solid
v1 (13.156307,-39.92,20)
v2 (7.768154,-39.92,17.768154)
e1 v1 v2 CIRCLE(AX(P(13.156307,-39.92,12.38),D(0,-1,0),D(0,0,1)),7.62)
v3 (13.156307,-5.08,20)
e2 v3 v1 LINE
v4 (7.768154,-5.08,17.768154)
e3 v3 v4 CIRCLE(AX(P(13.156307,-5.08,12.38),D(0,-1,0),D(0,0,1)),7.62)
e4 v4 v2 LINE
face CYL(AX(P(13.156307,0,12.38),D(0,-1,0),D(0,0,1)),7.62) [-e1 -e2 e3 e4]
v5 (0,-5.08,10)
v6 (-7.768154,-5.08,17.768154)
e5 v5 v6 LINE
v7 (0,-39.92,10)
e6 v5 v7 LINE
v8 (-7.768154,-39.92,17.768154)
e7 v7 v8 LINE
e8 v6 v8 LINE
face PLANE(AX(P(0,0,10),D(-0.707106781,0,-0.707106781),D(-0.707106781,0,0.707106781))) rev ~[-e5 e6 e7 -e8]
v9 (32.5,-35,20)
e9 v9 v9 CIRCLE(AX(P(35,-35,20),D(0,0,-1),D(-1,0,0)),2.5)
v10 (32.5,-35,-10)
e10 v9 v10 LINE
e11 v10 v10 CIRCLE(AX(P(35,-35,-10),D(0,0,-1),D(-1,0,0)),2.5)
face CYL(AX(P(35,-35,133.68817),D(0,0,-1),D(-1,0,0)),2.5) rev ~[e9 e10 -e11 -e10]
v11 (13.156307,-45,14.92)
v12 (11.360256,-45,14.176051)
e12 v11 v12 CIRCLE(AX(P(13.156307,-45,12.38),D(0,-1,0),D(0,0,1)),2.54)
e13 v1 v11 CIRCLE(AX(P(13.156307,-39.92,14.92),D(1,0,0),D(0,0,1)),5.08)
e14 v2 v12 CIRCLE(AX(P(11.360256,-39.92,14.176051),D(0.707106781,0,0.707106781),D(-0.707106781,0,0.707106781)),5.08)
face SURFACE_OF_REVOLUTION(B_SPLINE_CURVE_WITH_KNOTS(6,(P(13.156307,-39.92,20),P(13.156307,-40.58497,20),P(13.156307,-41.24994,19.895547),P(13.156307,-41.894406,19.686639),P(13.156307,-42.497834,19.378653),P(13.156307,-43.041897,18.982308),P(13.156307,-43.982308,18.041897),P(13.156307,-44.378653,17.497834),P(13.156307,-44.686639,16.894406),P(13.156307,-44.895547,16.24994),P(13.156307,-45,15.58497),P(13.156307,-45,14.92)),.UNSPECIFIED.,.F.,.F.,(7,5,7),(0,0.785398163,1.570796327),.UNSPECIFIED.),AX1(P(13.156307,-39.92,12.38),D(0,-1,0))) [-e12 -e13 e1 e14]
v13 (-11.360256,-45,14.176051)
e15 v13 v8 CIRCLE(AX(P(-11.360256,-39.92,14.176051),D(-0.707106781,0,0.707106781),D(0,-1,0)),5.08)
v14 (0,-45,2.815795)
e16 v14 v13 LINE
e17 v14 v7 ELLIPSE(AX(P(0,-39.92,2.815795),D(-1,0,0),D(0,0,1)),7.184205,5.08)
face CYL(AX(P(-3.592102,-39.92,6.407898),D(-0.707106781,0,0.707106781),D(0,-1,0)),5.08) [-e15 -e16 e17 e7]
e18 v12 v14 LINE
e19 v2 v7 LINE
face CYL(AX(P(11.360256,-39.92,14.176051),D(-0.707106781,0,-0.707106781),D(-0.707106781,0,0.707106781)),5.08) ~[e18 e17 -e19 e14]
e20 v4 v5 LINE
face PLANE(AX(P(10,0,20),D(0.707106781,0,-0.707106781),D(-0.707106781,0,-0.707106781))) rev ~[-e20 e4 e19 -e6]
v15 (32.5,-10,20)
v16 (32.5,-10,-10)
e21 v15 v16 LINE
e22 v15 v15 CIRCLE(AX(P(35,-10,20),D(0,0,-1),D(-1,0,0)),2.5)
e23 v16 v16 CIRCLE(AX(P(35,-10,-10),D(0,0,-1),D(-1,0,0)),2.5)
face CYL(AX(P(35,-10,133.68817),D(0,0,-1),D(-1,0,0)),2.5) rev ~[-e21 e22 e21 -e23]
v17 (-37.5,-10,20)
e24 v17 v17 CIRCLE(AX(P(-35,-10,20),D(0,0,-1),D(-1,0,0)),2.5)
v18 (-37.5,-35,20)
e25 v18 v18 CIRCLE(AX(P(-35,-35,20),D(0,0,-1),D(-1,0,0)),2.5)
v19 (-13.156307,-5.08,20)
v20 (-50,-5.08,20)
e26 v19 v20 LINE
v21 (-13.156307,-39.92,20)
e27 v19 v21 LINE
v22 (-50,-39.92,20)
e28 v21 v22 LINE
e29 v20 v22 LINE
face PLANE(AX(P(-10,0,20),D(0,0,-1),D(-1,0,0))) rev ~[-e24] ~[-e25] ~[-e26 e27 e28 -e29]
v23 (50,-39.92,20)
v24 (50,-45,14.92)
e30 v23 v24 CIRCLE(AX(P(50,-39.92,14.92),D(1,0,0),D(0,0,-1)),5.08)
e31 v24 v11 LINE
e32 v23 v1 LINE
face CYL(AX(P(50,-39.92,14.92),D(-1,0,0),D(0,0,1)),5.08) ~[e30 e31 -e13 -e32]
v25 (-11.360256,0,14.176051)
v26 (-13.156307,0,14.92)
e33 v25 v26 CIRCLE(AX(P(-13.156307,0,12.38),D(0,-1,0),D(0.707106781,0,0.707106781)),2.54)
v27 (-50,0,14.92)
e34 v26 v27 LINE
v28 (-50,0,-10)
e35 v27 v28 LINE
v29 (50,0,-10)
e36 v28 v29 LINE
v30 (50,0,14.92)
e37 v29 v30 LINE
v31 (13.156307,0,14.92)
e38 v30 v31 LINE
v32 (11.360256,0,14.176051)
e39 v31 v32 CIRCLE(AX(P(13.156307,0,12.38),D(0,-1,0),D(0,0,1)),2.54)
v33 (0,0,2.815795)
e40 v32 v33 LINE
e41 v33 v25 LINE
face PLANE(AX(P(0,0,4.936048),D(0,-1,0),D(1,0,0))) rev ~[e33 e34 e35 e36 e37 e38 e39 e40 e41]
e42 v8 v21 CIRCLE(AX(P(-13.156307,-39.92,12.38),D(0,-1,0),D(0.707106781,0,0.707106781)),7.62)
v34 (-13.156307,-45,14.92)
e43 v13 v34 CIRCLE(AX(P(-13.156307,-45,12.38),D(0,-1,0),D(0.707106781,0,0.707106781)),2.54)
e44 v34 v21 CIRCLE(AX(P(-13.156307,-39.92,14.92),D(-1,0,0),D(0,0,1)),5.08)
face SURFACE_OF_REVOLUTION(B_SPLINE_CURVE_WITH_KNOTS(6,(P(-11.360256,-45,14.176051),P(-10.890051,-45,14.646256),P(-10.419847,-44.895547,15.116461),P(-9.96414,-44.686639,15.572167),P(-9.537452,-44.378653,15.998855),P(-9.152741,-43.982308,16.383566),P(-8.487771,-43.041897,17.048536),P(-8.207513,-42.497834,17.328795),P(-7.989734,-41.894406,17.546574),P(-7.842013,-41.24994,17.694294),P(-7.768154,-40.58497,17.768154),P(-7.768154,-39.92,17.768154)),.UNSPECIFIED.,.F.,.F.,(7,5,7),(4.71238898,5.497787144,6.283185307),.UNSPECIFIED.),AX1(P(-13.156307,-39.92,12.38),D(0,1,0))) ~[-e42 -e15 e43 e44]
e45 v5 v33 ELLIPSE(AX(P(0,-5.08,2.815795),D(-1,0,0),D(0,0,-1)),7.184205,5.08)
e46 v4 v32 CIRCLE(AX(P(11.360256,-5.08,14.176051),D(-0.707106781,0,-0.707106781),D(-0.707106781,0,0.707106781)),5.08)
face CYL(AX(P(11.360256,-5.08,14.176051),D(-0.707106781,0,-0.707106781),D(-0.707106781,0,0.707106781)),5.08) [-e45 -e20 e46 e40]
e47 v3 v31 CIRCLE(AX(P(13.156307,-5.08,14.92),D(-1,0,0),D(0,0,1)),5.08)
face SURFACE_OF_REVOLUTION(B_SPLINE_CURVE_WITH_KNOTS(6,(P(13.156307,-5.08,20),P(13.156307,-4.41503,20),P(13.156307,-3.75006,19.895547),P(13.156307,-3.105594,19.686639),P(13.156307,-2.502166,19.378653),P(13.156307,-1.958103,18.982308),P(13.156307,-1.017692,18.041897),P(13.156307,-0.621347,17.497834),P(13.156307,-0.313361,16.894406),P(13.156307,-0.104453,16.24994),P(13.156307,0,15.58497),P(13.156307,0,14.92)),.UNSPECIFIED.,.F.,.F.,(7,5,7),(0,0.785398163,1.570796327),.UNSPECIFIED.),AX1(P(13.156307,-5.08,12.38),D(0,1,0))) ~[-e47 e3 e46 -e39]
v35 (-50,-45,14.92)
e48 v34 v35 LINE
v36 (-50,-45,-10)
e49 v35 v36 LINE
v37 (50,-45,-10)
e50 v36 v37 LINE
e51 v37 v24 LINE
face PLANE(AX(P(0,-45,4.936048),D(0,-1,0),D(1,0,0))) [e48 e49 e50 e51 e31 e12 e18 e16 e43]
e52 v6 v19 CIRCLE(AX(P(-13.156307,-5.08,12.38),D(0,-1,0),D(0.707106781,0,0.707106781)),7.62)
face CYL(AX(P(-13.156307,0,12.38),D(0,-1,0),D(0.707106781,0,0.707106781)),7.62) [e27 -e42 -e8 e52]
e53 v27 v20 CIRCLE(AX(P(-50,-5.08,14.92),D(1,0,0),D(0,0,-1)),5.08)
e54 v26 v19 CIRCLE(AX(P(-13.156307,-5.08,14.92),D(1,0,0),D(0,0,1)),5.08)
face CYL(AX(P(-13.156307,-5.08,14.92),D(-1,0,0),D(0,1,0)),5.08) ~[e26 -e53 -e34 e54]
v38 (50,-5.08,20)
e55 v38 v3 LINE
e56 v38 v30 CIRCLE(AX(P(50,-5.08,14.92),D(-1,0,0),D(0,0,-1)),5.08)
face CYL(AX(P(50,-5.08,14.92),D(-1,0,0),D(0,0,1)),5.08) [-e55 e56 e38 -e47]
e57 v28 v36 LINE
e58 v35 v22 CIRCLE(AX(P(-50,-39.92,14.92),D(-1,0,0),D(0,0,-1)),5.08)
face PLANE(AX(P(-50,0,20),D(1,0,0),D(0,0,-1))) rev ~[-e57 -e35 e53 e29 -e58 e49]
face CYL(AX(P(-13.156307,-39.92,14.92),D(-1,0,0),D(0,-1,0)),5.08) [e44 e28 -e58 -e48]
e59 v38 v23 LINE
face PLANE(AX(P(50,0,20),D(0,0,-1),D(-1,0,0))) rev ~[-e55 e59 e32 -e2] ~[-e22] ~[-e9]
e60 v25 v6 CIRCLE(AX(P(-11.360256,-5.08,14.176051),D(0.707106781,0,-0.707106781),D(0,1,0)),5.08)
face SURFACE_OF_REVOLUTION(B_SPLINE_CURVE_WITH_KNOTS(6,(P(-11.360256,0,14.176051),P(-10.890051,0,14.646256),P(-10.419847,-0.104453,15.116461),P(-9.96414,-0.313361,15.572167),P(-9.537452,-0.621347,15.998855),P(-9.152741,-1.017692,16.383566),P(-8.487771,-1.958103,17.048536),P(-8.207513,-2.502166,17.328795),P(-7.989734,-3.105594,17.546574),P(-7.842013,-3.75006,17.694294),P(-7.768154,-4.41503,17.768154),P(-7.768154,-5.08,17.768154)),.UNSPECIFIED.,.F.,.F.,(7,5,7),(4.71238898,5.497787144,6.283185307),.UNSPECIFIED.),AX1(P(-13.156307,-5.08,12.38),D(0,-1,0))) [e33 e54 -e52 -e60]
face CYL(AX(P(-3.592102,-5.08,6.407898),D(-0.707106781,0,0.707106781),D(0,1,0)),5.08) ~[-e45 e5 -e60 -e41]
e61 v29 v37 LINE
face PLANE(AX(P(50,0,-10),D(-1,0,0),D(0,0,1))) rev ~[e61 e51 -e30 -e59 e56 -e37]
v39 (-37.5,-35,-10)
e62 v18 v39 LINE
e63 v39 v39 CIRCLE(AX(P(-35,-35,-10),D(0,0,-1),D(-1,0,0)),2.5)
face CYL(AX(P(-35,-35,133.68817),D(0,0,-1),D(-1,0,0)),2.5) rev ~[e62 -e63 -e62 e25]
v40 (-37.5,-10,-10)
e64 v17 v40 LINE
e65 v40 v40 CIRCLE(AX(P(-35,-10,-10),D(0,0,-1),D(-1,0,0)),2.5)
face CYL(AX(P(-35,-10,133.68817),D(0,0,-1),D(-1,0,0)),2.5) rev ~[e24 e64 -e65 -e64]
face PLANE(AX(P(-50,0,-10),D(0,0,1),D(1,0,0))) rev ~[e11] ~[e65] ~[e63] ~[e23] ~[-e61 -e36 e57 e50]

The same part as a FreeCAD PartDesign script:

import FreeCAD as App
import Part
import Sketcher
from FreeCAD import Vector


def edges_at(feature, points):
    """Names of the edges that pass closest to the given points."""
    edges = feature.Shape.Edges
    near = lambda p: min(range(len(edges)), key=lambda i: edges[i].distToShape(Part.Vertex(*p))[0])
    return sorted({f"Edge{near(p) + 1}" for p in points})

doc = App.newDocument("Part")
body = doc.addObject("PartDesign::Body", "Body")

# Sketch on XZ plane
sketch1 = doc.addObject("Sketcher::SketchObject", "Sketch")
body.addObject(sketch1)
sketch1.AttachmentSupport = (doc.XZ_Plane, [""])
sketch1.MapMode = "FlatFace"
sketch1.addGeometry(Part.LineSegment(Vector(50, 20, 0), Vector(10, 20, 0)), False)
sketch1.addGeometry(Part.LineSegment(Vector(10, 20, 0), Vector(0, 10, 0)), False)
sketch1.addGeometry(Part.LineSegment(Vector(0, 10, 0), Vector(-10, 20, 0)), False)
sketch1.addGeometry(Part.LineSegment(Vector(-10, 20, 0), Vector(-50, 20, 0)), False)
sketch1.addGeometry(Part.LineSegment(Vector(-50, 20, 0), Vector(-50, -10, 0)), False)
sketch1.addGeometry(Part.LineSegment(Vector(-50, -10, 0), Vector(50, -10, 0)), False)
sketch1.addGeometry(Part.LineSegment(Vector(50, -10, 0), Vector(50, 20, 0)), False)
sketch1.addConstraint(Sketcher.Constraint("Coincident", 0, 2, 1, 1))
sketch1.addConstraint(Sketcher.Constraint("Coincident", 1, 2, 2, 1))
sketch1.addConstraint(Sketcher.Constraint("Coincident", 2, 2, 3, 1))
sketch1.addConstraint(Sketcher.Constraint("Coincident", 3, 2, 4, 1))
sketch1.addConstraint(Sketcher.Constraint("Coincident", 4, 2, 5, 1))
sketch1.addConstraint(Sketcher.Constraint("Coincident", 5, 2, 6, 1))
sketch1.addConstraint(Sketcher.Constraint("Coincident", 6, 2, 0, 1))
sketch1.addConstraint(Sketcher.Constraint("Horizontal", 0))
sketch1.addConstraint(Sketcher.Constraint("Horizontal", 3))
sketch1.addConstraint(Sketcher.Constraint("Vertical", 4))
sketch1.addConstraint(Sketcher.Constraint("Horizontal", 5))
sketch1.addConstraint(Sketcher.Constraint("Vertical", 6))
sketch1.addConstraint(Sketcher.Constraint("Symmetric", 0, 2, 2, 2, -2))
sketch1.addConstraint(Sketcher.Constraint("PointOnObject", 1, 2, -2))
sketch1.addConstraint(Sketcher.Constraint("Perpendicular", 1, 2))
sketch1.addConstraint(Sketcher.Constraint("Equal", 0, 3))
sketch1.addConstraint(Sketcher.Constraint("DistanceX", 0, 2, 0, 1, 40.0))
sketch1.addConstraint(Sketcher.Constraint("DistanceX", 5, 1, 5, 2, 100.0))
sketch1.addConstraint(Sketcher.Constraint("DistanceY", 4, 2, 4, 1, 30.0))
sketch1.addConstraint(Sketcher.Constraint("DistanceY", -1, 1, 0, 2, 20.0))
pad1 = doc.addObject("PartDesign::Pad", "Pad")
body.addObject(pad1)
pad1.Profile = sketch1
pad1.Length = 45

# Sketch on XY plane
sketch2 = doc.addObject("Sketcher::SketchObject", "Sketch001")
body.addObject(sketch2)
sketch2.AttachmentSupport = (doc.XY_Plane, [""])
sketch2.MapMode = "FlatFace"
sketch2.AttachmentOffset = App.Placement(Vector(0, 0, 20), App.Rotation())
sketch2.addGeometry(Part.Circle(Vector(35, -35, 0), Vector(0, 0, 1), 2.5), False)
sketch2.addConstraint(Sketcher.Constraint("Diameter", 0, 5.0))
sketch2.addConstraint(Sketcher.Constraint("DistanceX", -1, 1, 0, 3, 35.0))
sketch2.addConstraint(Sketcher.Constraint("DistanceY", 0, 3, -1, 1, 35.0))
doc.recompute()
hole = doc.addObject("PartDesign::Hole", "Hole")
body.addObject(hole)
hole.Profile = sketch2
hole.ThreadType = "None"
hole.Diameter = 5
hole.DepthType = "ThroughAll"

# Sketch on XY plane
sketch3 = doc.addObject("Sketcher::SketchObject", "Sketch002")
body.addObject(sketch3)
sketch3.AttachmentSupport = (doc.XY_Plane, [""])
sketch3.MapMode = "FlatFace"
sketch3.AttachmentOffset = App.Placement(Vector(0, 0, 20), App.Rotation())
sketch3.addGeometry(Part.Circle(Vector(35, -10, 0), Vector(0, 0, 1), 2.5), False)
sketch3.addConstraint(Sketcher.Constraint("Diameter", 0, 5.0))
sketch3.addConstraint(Sketcher.Constraint("DistanceX", -1, 1, 0, 3, 35.0))
sketch3.addConstraint(Sketcher.Constraint("DistanceY", 0, 3, -1, 1, 10.0))
doc.recompute()
hole2 = doc.addObject("PartDesign::Hole", "Hole001")
body.addObject(hole2)
hole2.Profile = sketch3
hole2.ThreadType = "None"
hole2.Diameter = 5
hole2.DepthType = "ThroughAll"

# Sketch on XY plane
sketch4 = doc.addObject("Sketcher::SketchObject", "Sketch003")
body.addObject(sketch4)
sketch4.AttachmentSupport = (doc.XY_Plane, [""])
sketch4.MapMode = "FlatFace"
sketch4.AttachmentOffset = App.Placement(Vector(0, 0, 20), App.Rotation())
sketch4.addGeometry(Part.Circle(Vector(-35, -10, 0), Vector(0, 0, 1), 2.5), False)
sketch4.addConstraint(Sketcher.Constraint("Diameter", 0, 5.0))
sketch4.addConstraint(Sketcher.Constraint("DistanceX", 0, 3, -1, 1, 35.0))
sketch4.addConstraint(Sketcher.Constraint("DistanceY", 0, 3, -1, 1, 10.0))
doc.recompute()
hole3 = doc.addObject("PartDesign::Hole", "Hole002")
body.addObject(hole3)
hole3.Profile = sketch4
hole3.ThreadType = "None"
hole3.Diameter = 5
hole3.DepthType = "ThroughAll"

# Sketch on XY plane
sketch5 = doc.addObject("Sketcher::SketchObject", "Sketch004")
body.addObject(sketch5)
sketch5.AttachmentSupport = (doc.XY_Plane, [""])
sketch5.MapMode = "FlatFace"
sketch5.AttachmentOffset = App.Placement(Vector(0, 0, 20), App.Rotation())
sketch5.addGeometry(Part.Circle(Vector(-35, -35, 0), Vector(0, 0, 1), 2.5), False)
sketch5.addConstraint(Sketcher.Constraint("Diameter", 0, 5.0))
sketch5.addConstraint(Sketcher.Constraint("DistanceX", 0, 3, -1, 1, 35.0))
sketch5.addConstraint(Sketcher.Constraint("DistanceY", 0, 3, -1, 1, 35.0))
doc.recompute()
hole4 = doc.addObject("PartDesign::Hole", "Hole003")
body.addObject(hole4)
hole4.Profile = sketch5
hole4.ThreadType = "None"
hole4.Diameter = 5
hole4.DepthType = "ThroughAll"
doc.recompute()

fillet = doc.addObject("PartDesign::Fillet", "Fillet")
body.addObject(fillet)
fillet.Base = (hole4, edges_at(hole4, [(10, -22.5, 20), (-10, -22.5, 20)]))
fillet.Radius = 7.62
doc.recompute()

fillet2 = doc.addObject("PartDesign::Fillet", "Fillet001")
body.addObject(fillet2)
fillet2.Base = (fillet, edges_at(fillet, [
    (-31.578, -45, 20),
    (31.578, -45, 20),
    (31.578, 0, 20),
    (-31.578, 0, 20),
]))
fillet2.Radius = 5.08

doc.recompute()
